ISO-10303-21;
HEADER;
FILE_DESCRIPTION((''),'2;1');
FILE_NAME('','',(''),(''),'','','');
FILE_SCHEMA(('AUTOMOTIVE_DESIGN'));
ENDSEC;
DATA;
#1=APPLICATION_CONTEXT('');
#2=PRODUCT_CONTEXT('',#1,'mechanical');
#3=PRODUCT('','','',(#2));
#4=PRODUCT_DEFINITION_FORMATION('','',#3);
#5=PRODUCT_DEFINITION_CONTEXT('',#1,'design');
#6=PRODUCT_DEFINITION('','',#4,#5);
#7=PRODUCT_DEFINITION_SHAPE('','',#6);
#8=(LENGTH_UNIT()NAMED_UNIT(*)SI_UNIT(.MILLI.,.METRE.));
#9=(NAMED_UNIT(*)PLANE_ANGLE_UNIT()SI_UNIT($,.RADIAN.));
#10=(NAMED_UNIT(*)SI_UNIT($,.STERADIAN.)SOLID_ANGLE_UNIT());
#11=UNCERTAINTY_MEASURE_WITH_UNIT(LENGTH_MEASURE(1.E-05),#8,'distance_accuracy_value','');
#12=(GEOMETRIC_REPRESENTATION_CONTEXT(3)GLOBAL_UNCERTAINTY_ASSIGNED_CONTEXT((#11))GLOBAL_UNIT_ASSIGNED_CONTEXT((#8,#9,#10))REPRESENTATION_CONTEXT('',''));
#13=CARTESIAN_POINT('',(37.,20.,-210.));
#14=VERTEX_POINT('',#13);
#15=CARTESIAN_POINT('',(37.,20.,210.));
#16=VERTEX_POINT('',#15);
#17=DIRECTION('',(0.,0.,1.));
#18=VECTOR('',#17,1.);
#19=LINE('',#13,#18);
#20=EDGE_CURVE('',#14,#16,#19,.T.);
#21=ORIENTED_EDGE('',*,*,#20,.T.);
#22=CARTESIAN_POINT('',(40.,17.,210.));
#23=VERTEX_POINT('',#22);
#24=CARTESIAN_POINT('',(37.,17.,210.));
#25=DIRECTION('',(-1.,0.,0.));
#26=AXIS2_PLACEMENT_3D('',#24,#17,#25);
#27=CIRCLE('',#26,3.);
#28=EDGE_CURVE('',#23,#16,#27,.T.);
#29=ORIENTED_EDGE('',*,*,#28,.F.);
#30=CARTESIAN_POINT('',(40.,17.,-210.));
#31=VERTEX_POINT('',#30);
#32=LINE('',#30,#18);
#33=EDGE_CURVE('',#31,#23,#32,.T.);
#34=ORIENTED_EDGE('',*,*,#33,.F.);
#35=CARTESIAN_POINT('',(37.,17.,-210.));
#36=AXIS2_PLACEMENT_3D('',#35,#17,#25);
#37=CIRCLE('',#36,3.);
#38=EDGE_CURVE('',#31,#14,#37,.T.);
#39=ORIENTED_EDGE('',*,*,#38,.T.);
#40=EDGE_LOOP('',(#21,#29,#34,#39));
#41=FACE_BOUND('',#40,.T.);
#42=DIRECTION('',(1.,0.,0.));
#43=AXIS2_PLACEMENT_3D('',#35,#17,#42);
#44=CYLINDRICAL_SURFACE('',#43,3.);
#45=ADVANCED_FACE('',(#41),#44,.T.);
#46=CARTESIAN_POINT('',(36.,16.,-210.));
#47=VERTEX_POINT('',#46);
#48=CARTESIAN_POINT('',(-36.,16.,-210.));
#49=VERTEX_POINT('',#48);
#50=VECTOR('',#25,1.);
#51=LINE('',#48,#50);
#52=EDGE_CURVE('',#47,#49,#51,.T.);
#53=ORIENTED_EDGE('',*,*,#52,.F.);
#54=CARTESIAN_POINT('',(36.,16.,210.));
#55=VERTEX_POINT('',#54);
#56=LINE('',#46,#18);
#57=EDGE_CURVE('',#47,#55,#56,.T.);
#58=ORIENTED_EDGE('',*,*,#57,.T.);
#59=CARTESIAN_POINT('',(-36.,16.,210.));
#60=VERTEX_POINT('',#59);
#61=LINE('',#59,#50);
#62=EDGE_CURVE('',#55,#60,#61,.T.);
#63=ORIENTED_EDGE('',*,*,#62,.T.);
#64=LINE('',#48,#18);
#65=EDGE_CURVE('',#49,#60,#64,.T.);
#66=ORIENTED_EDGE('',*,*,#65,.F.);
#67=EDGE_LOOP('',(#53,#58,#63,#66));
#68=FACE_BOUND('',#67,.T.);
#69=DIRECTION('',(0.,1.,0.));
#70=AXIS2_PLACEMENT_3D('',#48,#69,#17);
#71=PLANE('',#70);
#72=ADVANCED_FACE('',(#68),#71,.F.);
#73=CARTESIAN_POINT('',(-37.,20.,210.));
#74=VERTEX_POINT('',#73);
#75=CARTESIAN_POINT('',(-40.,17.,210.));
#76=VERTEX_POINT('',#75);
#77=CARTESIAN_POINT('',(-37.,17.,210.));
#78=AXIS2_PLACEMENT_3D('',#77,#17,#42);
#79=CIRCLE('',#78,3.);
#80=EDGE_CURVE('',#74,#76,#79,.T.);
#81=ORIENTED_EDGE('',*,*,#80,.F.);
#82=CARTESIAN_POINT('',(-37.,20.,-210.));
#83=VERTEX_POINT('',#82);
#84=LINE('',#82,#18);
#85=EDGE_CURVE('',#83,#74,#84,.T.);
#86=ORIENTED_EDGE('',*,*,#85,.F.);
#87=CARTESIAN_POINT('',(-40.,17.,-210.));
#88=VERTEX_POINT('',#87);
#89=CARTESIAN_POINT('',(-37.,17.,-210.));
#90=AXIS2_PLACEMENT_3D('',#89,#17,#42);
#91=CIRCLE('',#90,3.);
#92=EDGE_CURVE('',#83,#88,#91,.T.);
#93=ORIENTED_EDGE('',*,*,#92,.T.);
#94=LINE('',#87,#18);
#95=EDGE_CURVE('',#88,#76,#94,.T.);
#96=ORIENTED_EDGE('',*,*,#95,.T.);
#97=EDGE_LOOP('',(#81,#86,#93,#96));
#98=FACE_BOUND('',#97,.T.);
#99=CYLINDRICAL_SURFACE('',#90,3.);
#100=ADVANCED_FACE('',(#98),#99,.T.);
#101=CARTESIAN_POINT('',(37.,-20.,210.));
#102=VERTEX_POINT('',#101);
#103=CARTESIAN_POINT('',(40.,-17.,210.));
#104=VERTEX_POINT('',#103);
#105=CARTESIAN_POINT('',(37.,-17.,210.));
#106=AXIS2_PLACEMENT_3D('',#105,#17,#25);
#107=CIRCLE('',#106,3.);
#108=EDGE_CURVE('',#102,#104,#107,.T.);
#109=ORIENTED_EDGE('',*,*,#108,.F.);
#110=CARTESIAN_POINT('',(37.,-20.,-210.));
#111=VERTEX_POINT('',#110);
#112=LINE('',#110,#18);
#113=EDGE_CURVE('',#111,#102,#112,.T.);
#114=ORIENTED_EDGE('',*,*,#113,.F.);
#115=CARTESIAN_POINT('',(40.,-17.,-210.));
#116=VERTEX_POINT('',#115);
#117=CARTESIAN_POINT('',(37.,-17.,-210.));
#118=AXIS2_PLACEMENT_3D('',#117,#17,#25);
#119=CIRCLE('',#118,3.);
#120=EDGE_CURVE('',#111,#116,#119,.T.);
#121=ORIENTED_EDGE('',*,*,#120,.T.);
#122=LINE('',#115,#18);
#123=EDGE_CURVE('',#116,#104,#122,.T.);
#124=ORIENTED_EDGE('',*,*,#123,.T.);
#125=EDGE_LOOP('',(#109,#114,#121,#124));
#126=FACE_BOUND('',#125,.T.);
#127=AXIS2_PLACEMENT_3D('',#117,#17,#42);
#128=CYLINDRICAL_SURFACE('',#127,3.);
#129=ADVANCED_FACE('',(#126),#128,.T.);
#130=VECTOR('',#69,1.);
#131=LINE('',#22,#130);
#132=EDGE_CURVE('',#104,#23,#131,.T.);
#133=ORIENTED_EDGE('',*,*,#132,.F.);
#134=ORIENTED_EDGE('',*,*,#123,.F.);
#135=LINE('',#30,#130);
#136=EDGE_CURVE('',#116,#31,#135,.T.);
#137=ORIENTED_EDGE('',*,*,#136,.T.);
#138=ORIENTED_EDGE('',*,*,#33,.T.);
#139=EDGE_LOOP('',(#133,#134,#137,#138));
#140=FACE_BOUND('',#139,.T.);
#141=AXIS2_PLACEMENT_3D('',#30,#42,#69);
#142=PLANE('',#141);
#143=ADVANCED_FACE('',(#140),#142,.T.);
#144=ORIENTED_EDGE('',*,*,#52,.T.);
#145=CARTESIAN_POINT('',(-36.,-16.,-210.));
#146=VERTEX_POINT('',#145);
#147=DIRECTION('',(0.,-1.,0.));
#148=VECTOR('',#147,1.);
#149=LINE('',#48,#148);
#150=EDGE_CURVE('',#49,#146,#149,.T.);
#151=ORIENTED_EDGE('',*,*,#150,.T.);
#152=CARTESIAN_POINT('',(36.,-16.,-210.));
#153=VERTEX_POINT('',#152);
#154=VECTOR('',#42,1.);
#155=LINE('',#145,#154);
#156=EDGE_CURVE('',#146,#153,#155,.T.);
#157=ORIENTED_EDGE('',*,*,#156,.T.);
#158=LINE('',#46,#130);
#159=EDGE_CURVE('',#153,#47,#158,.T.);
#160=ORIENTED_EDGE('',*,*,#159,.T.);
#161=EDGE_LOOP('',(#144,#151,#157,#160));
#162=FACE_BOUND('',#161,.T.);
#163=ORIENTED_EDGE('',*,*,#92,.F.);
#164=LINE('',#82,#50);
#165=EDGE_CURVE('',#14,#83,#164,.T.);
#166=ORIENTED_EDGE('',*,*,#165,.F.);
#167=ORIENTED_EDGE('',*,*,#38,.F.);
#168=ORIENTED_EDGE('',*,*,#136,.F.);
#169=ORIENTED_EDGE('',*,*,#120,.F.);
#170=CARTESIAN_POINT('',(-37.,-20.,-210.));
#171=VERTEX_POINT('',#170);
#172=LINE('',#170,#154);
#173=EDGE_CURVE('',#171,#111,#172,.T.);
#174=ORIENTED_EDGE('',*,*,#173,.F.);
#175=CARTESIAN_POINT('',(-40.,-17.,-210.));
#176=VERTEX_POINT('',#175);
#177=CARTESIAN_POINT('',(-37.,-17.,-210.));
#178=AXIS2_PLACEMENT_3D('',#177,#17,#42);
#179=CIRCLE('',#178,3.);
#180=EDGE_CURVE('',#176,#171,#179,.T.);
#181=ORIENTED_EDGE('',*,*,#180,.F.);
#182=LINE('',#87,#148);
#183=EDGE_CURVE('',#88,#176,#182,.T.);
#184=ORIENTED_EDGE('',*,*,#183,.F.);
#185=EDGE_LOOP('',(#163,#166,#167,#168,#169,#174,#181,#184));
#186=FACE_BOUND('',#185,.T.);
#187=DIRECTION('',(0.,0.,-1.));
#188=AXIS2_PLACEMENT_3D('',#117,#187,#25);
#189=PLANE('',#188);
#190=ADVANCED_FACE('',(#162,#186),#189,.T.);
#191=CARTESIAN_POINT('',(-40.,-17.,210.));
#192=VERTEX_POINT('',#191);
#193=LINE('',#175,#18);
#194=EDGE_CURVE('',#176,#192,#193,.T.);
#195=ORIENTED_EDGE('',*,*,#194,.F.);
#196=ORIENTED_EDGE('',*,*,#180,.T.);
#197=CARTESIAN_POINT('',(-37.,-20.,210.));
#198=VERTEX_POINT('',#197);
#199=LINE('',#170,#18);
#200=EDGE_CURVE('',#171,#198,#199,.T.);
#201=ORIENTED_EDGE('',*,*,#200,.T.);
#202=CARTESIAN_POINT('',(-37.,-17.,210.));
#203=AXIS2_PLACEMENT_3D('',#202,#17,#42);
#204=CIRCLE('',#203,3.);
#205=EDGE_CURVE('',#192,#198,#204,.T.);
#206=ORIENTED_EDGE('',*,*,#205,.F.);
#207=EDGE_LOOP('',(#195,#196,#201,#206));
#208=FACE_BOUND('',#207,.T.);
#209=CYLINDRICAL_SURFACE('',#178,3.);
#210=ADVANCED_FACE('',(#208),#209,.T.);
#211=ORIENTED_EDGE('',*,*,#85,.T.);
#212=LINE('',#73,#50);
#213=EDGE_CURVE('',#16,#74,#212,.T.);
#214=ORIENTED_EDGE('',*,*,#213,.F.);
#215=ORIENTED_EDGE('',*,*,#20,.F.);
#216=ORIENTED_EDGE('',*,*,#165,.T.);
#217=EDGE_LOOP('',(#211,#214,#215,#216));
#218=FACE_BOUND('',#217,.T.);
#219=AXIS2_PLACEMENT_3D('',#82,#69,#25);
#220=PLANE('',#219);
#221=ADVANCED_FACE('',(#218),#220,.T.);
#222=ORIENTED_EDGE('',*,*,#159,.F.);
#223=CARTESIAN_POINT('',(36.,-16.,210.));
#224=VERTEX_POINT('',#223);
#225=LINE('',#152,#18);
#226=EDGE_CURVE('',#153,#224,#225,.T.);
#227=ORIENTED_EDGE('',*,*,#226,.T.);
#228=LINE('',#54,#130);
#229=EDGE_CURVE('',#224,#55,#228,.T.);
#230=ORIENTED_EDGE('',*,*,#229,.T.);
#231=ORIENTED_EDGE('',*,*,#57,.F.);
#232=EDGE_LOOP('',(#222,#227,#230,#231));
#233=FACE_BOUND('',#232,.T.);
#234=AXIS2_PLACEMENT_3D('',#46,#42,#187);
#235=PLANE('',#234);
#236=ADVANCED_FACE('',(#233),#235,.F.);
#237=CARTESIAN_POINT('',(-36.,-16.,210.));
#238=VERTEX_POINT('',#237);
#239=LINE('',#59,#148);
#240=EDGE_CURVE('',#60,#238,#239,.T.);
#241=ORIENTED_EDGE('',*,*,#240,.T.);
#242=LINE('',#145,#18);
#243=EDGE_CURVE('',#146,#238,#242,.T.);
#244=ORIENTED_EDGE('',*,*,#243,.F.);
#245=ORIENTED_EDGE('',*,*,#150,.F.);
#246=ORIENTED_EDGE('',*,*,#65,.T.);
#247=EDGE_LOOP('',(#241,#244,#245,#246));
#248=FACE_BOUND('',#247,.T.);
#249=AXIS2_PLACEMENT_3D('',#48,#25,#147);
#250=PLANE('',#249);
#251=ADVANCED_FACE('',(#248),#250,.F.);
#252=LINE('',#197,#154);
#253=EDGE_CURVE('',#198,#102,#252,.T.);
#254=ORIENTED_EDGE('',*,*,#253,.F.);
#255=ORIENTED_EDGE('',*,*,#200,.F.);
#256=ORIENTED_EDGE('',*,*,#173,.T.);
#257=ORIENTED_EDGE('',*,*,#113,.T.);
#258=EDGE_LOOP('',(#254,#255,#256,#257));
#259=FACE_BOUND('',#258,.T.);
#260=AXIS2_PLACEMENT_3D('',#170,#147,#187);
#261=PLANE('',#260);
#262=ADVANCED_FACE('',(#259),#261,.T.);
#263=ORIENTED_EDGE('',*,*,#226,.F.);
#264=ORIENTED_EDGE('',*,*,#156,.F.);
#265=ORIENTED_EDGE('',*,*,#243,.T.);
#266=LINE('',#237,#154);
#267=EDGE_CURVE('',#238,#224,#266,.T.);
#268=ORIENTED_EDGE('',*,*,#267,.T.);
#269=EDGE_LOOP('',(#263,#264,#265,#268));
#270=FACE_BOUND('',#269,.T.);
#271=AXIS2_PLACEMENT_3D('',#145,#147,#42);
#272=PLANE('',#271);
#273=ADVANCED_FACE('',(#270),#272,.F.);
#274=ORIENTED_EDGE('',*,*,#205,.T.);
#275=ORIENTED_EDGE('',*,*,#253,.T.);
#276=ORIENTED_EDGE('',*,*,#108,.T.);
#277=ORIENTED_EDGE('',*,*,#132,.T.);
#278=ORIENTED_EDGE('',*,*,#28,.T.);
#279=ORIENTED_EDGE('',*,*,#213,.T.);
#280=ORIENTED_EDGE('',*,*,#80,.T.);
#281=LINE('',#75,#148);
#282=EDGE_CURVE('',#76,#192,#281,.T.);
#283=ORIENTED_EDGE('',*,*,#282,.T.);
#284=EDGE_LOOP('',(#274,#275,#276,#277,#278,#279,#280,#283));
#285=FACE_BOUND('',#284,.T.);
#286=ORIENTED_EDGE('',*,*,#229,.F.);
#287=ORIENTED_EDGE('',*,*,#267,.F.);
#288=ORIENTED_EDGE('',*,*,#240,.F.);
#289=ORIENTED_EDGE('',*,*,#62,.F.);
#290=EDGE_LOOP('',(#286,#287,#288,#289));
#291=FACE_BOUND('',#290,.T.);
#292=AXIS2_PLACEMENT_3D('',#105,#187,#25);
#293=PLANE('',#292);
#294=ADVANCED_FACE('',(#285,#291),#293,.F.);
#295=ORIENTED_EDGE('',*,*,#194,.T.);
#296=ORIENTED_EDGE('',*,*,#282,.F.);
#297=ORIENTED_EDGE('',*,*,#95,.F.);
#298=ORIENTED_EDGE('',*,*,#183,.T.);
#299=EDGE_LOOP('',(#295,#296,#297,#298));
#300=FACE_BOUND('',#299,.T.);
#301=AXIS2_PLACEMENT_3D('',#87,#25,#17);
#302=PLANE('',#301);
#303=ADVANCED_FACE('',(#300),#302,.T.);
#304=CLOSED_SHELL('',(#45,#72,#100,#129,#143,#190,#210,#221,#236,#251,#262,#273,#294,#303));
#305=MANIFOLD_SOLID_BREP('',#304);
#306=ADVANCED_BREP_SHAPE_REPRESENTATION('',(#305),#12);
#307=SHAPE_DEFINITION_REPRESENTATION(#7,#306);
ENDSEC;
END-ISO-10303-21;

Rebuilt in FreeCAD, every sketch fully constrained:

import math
import FreeCAD as App
import Part
import Sketcher
Q = App.Units.Quantity

doc = App.newDocument("Part")
body = doc.addObject("PartDesign::Body", "Body")

# Sketch on XY plane
sketch1 = body.newObject("Sketcher::SketchObject", "Sketch")
sketch1.AttachmentSupport = (doc.getObject("XY_Plane"), [""])
sketch1.MapMode = "FlatFace"
sketch1.addGeometry([
    Part.LineSegment(App.Vector(37, 20, 0), App.Vector(-37, 20, 0)),  # 0
    Part.ArcOfCircle(Part.Circle(App.Vector(-37, 17, 0), App.Vector(0, 0, 1), 3), math.radians(90), math.radians(180)),  # 1
    Part.LineSegment(App.Vector(-40, 17, 0), App.Vector(-40, -17, 0)),  # 2
    Part.ArcOfCircle(Part.Circle(App.Vector(-37, -17, 0), App.Vector(0, 0, 1), 3), math.radians(180), math.radians(270)),  # 3
    Part.LineSegment(App.Vector(-37, -20, 0), App.Vector(37, -20, 0)),  # 4
    Part.ArcOfCircle(Part.Circle(App.Vector(37, -17, 0), App.Vector(0, 0, 1), 3), math.radians(-90), math.radians(0)),  # 5
    Part.LineSegment(App.Vector(40, -17, 0), App.Vector(40, 17, 0)),  # 6
    Part.ArcOfCircle(Part.Circle(App.Vector(37, 17, 0), App.Vector(0, 0, 1), 3), math.radians(0), math.radians(90)),  # 7
    Part.LineSegment(App.Vector(-36, -16, 0), App.Vector(-36, 16, 0)),  # 8
    Part.LineSegment(App.Vector(-36, 16, 0), App.Vector(36, 16, 0)),  # 9
    Part.LineSegment(App.Vector(36, 16, 0), App.Vector(36, -16, 0)),  # 10
    Part.LineSegment(App.Vector(36, -16, 0), App.Vector(-36, -16, 0)),  # 11
], False)
sketch1.addConstraint([
    Sketcher.Constraint("Tangent", 0, 2, 1, 1),
    Sketcher.Constraint("Tangent", 1, 2, 2, 1),
    Sketcher.Constraint("Tangent", 2, 2, 3, 1),
    Sketcher.Constraint("Tangent", 3, 2, 4, 1),
    Sketcher.Constraint("Tangent", 4, 2, 5, 1),
    Sketcher.Constraint("Tangent", 5, 2, 6, 1),
    Sketcher.Constraint("Tangent", 6, 2, 7, 1),
    Sketcher.Constraint("Tangent", 7, 2, 0, 1),
    Sketcher.Constraint("Coincident", 8, 2, 9, 1),
    Sketcher.Constraint("Coincident", 9, 2, 10, 1),
    Sketcher.Constraint("Coincident", 10, 2, 11, 1),
    Sketcher.Constraint("Coincident", 11, 2, 8, 1),
    Sketcher.Constraint("Horizontal", 0),
    Sketcher.Constraint("Vertical", 2),
    Sketcher.Constraint("Horizontal", 4),
    Sketcher.Constraint("Vertical", 6),
    Sketcher.Constraint("Vertical", 8),
    Sketcher.Constraint("Horizontal", 9),
    Sketcher.Constraint("Vertical", 10),
    Sketcher.Constraint("Horizontal", 11),
    Sketcher.Constraint("Equal", 1, 3),
    Sketcher.Constraint("Equal", 3, 5),
    Sketcher.Constraint("Equal", 5, 7),
    Sketcher.Constraint("Symmetric", 1, 3, 5, 3, -1, 1),
    Sketcher.Constraint("Symmetric", 8, 2, 10, 2, -1, 1),
    Sketcher.Constraint("Radius", 1, Q("3 mm")),
    Sketcher.Constraint("DistanceX", 0, 2, 0, 1, Q("74 mm")),
    Sketcher.Constraint("DistanceX", 9, 1, 9, 2, Q("72 mm")),
    Sketcher.Constraint("DistanceY", 2, 2, 2, 1, Q("34 mm")),
    Sketcher.Constraint("DistanceY", 8, 1, 8, 2, Q("32 mm")),
])
pad1 = body.newObject("PartDesign::Pad", "Pad")
pad1.Profile = sketch1
pad1.Type = "TwoLengths"
pad1.Length = 210
pad1.Length2 = 210

doc.recompute()
